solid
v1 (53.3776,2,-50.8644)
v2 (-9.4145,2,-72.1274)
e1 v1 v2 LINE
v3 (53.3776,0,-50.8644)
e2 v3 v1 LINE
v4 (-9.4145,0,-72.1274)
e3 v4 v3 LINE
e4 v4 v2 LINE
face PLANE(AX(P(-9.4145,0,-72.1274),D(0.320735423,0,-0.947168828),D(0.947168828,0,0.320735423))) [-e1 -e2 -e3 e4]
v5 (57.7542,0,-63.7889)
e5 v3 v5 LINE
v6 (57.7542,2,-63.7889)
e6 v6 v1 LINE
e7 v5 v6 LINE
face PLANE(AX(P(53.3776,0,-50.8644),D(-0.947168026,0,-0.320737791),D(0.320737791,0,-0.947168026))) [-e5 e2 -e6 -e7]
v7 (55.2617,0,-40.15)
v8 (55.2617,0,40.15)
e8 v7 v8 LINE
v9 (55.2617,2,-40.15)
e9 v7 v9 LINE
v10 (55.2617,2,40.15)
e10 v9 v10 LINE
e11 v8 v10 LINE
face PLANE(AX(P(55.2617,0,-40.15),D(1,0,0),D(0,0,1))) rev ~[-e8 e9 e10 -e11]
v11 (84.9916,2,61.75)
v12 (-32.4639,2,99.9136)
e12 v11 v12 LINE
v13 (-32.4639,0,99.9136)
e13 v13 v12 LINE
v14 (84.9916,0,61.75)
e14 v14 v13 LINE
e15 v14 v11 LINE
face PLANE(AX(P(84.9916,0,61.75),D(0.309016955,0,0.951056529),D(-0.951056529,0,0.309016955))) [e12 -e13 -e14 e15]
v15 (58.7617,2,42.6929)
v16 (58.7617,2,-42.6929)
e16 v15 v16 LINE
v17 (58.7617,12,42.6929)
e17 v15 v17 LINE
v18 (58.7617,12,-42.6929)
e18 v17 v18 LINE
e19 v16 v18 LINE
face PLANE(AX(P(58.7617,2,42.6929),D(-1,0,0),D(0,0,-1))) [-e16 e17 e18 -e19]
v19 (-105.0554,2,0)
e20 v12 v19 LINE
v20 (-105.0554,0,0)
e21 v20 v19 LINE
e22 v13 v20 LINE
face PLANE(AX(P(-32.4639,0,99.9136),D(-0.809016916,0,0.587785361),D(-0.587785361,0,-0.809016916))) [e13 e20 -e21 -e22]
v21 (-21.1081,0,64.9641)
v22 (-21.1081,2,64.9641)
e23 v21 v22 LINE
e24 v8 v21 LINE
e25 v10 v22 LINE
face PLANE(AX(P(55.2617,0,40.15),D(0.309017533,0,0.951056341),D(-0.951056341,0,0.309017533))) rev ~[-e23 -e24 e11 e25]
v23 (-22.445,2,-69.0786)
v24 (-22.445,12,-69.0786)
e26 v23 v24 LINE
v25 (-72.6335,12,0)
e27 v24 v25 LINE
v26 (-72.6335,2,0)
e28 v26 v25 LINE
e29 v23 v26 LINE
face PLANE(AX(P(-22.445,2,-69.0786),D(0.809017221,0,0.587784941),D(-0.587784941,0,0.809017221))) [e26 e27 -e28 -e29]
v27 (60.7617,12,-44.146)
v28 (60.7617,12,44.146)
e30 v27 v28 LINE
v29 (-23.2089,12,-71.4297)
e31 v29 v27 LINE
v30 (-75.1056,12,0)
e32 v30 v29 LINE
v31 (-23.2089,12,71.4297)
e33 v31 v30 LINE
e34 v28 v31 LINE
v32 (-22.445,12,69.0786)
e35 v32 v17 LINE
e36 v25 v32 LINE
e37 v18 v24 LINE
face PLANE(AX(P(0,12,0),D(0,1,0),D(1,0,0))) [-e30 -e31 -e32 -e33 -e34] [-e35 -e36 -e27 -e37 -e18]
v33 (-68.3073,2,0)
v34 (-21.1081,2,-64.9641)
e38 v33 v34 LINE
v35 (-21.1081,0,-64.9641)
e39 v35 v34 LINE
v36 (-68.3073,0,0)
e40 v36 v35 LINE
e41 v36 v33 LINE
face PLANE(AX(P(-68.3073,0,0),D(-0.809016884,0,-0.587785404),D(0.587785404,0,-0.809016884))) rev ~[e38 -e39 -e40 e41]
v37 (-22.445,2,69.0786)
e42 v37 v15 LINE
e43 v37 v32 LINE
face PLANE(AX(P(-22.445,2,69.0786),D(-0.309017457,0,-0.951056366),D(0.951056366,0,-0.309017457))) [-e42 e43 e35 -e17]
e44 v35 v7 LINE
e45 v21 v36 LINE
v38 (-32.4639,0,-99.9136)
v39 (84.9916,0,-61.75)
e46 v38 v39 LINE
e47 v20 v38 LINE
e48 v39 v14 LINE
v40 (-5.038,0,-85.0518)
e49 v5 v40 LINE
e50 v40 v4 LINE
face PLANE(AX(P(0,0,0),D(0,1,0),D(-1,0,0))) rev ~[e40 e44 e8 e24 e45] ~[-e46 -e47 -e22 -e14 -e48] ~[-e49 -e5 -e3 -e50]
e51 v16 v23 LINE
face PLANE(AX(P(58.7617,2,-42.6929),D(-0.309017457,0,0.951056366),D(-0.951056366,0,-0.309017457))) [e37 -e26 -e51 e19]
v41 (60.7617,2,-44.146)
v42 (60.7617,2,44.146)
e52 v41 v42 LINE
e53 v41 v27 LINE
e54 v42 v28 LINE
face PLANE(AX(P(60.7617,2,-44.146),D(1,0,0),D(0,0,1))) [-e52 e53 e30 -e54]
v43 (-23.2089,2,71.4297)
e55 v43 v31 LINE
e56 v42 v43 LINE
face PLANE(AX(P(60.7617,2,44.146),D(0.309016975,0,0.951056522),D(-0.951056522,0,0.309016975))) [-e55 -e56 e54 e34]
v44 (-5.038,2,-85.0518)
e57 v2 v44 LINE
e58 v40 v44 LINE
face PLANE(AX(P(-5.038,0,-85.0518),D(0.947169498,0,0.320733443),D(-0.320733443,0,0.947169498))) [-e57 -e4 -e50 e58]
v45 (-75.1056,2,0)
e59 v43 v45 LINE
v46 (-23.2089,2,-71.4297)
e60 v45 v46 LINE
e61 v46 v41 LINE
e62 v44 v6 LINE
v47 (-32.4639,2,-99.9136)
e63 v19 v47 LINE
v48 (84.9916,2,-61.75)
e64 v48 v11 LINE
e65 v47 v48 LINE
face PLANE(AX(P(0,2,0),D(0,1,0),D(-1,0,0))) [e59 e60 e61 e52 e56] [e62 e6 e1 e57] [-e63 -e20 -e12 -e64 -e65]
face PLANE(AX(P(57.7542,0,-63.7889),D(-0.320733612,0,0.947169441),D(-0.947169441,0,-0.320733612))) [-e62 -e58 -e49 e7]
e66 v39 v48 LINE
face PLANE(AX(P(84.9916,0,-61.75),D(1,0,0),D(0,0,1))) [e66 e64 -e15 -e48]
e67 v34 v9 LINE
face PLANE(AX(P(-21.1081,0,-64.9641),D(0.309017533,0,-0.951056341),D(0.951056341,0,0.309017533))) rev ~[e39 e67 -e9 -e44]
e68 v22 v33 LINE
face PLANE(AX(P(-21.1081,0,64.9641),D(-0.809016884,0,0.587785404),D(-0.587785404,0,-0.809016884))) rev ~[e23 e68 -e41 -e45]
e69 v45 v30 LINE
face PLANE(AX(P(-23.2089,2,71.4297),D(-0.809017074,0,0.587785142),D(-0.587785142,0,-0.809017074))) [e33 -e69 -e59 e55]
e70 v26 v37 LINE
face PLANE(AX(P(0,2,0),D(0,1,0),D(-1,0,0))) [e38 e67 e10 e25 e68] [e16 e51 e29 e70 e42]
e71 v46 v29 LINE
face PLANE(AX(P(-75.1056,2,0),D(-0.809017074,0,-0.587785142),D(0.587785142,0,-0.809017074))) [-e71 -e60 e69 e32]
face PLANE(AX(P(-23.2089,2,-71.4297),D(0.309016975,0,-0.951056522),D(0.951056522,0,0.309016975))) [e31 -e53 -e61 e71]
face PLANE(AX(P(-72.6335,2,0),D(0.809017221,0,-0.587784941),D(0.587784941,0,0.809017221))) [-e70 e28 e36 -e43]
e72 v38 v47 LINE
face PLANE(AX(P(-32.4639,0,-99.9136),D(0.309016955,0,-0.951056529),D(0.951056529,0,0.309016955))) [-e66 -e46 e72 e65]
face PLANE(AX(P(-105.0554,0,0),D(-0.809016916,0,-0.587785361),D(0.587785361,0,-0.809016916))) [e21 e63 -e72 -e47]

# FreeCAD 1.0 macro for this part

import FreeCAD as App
import Part
import Sketcher
Q = App.Units.Quantity


def add_polygon(sketch, points):
    """Adds a closed chain of lines whose ends are joined by coincident constraints."""
    first, n = sketch.GeometryCount, len(points)
    for a, b in zip(points, points[1:] + points[:1]):
        sketch.addGeometry(Part.LineSegment(App.Vector(*a, 0), App.Vector(*b, 0)), False)
    for i in range(n):
        sketch.addConstraint(Sketcher.Constraint("Coincident", first + i, 2, first + (i + 1) % n, 1))

doc = App.newDocument("Part")
body = doc.addObject("PartDesign::Body", "Body")

sketch1 = body.newObject("Sketcher::SketchObject", "Sketch")
sketch1.AttachmentSupport = (doc.getObject("XZ_Plane"), [""])
sketch1.MapMode = "FlatFace"
add_polygon(sketch1, [(-32, -100), (-105, 0), (-32, 100), (85, 62), (85, -62)])
add_polygon(sketch1, [(-21, 65), (-68, 0), (-21, -65), (55, -40), (55, 40)])
sketch1.addConstraint(Sketcher.Constraint("Vertical", 3))
sketch1.addConstraint(Sketcher.Constraint("Vertical", 8))
sketch1.addConstraint(Sketcher.Constraint("Symmetric", 1, 2, 4, 2, -1))
sketch1.addConstraint(Sketcher.Constraint("Symmetric", 6, 2, 9, 2, -1))
sketch1.addConstraint(Sketcher.Constraint("PointOnObject", 0, 2, -1))
sketch1.addConstraint(Sketcher.Constraint("PointOnObject", 5, 2, -1))
sketch1.addConstraint(Sketcher.Constraint("Parallel", 1, 5))
sketch1.addConstraint(Sketcher.Constraint("Parallel", 4, 7))
sketch1.addConstraint(Sketcher.Constraint("Parallel", 2, 9))
sketch1.addConstraint(Sketcher.Constraint("Equal", 1, 2))
sketch1.addConstraint(Sketcher.Constraint("Equal", 2, 4))
sketch1.addConstraint(Sketcher.Constraint("Equal", 6, 7))
sketch1.addConstraint(Sketcher.Constraint("DistanceY", 3, 2, 3, 1, 123.5))
sketch1.addConstraint(Sketcher.Constraint("DistanceY", 8, 1, 8, 2, 80.3))
sketch1.addConstraint(Sketcher.Constraint("Distance", 0, 123.5))
sketch1.addConstraint(Sketcher.Constraint("Angle", 0, Q("126 deg")))
sketch1.addConstraint(Sketcher.Constraint("DistanceX", 7, 2, 3, 2, 29.73))
sketch1.addConstraint(Sketcher.Constraint("DistanceX", 1, 2, -1, 1, 32.464))
pad1 = body.newObject("PartDesign::Pad", "Pad")
pad1.Profile = sketch1
pad1.Length = 2
pad1.Reversed = True

sketch2 = body.newObject("Sketcher::SketchObject", "Sketch001")
sketch2.AttachmentSupport = (doc.getObject("XZ_Plane"), [""])
sketch2.MapMode = "FlatFace"
sketch2.AttachmentOffset = App.Placement(App.Vector(0, 0, -2), App.Rotation())
add_polygon(sketch2, [(61, -44), (-23, -71), (-75, 0), (-23, 71), (61, 44)])
add_polygon(sketch2, [(-22, -69), (59, -43), (59, 43), (-22, 69), (-73, 0)])
sketch2.addConstraint(Sketcher.Constraint("Vertical", 4))
sketch2.addConstraint(Sketcher.Constraint("Vertical", 6))
sketch2.addConstraint(Sketcher.Constraint("Symmetric", 0, 2, 2, 2, -1))
sketch2.addConstraint(Sketcher.Constraint("Symmetric", 7, 2, 9, 2, -1))
sketch2.addConstraint(Sketcher.Constraint("PointOnObject", 1, 2, -1))
sketch2.addConstraint(Sketcher.Constraint("PointOnObject", 8, 2, -1))
sketch2.addConstraint(Sketcher.Constraint("Parallel", 0, 5))
sketch2.addConstraint(Sketcher.Constraint("Parallel", 3, 7))
sketch2.addConstraint(Sketcher.Constraint("Parallel", 2, 8))
sketch2.addConstraint(Sketcher.Constraint("Equal", 0, 1))
sketch2.addConstraint(Sketcher.Constraint("Equal", 2, 3))
sketch2.addConstraint(Sketcher.Constraint("Equal", 7, 8))
sketch2.addConstraint(Sketcher.Constraint("DistanceX", 5, 2, 4, 2, 2.0))
sketch2.addConstraint(Sketcher.Constraint("Angle", 0, Q("-162 deg")))
sketch2.addConstraint(Sketcher.Constraint("Angle", 1, Q("126 deg")))
sketch2.addConstraint(Sketcher.Constraint("DistanceY", 4, 2, 4, 1, 88.292))
sketch2.addConstraint(Sketcher.Constraint("DistanceY", 6, 1, 6, 2, 85.3858))
sketch2.addConstraint(Sketcher.Constraint("DistanceX", 0, 2, -1, 1, 23.209))
pad2 = body.newObject("PartDesign::Pad", "Pad001")
pad2.Profile = sketch2
pad2.Length = 10
pad2.Reversed = True

sketch3 = body.newObject("Sketcher::SketchObject", "Sketch002")
sketch3.AttachmentSupport = (doc.getObject("XZ_Plane"), [""])
sketch3.MapMode = "FlatFace"
add_polygon(sketch3, [(53, -51), (-9, -72), (-5, -85), (58, -64)])
sketch3.addConstraint(Sketcher.Constraint("Perpendicular", 0, 1))
sketch3.addConstraint(Sketcher.Constraint("Perpendicular", 1, 2))
sketch3.addConstraint(Sketcher.Constraint("Perpendicular", 2, 3))
sketch3.addConstraint(Sketcher.Constraint("DistanceX", 1, 2, -1, 1, 5.038))
sketch3.addConstraint(Sketcher.Constraint("DistanceY", 2, 2, -1, 1, 63.789))
sketch3.addConstraint(Sketcher.Constraint("DistanceY", 1, 2, 2, 2, 21.263))
sketch3.addConstraint(Sketcher.Constraint("DistanceX", 0, 2, 3, 2, 62.792))
sketch3.addConstraint(Sketcher.Constraint("Distance", 1, 13.6453))
pocket1 = body.newObject("PartDesign::Pocket", "Pocket")
pocket1.Profile = sketch3
pocket1.Length = 10

doc.recompute()
